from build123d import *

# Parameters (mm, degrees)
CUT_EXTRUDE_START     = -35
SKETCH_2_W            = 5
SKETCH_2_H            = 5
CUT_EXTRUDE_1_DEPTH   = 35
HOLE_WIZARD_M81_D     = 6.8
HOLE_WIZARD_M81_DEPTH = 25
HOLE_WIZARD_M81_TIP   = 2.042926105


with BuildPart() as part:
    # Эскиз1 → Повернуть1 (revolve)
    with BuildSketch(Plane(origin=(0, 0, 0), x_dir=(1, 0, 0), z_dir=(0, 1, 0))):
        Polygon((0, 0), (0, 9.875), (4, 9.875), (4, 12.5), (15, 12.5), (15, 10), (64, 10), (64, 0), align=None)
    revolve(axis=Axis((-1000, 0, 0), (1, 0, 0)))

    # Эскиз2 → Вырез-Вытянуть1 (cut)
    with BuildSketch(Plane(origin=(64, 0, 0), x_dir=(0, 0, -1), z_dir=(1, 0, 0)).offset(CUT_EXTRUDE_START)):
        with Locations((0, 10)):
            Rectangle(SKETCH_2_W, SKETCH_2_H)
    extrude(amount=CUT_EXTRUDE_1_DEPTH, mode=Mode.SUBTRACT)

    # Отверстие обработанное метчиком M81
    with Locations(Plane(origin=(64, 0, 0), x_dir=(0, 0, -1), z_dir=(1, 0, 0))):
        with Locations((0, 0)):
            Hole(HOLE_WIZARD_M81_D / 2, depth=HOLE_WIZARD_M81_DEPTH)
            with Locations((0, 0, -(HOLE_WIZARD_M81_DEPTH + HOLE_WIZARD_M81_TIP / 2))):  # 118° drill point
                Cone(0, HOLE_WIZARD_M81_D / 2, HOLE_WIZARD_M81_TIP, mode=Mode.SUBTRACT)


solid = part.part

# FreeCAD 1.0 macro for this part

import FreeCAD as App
import Part
import Sketcher


def add_polygon(sketch, points):
    """Adds a closed chain of lines whose ends are joined by coincident constraints."""
    first, n = sketch.GeometryCount, len(points)
    for a, b in zip(points, points[1:] + points[:1]):
        sketch.addGeometry(Part.LineSegment(App.Vector(*a, 0), App.Vector(*b, 0)), False)
    for i in range(n):
        sketch.addConstraint(Sketcher.Constraint("Coincident", first + i, 2, first + (i + 1) % n, 1))

doc = App.newDocument("Part")
body = doc.addObject("PartDesign::Body", "Body")

sketch1 = body.newObject("Sketcher::SketchObject", "Sketch")
sketch1.AttachmentSupport = (doc.getObject("XZ_Plane"), [""])
sketch1.MapMode = "FlatFace"
add_polygon(sketch1, [(0, -9.9), (0, 0), (64, 0), (64, -10), (15, -10), (15, -12.5), (4, -12.5), (4, -9.9)])
sketch1.addConstraint([
    Sketcher.Constraint("Vertical", 0),
    Sketcher.Constraint("Horizontal", 1),
    Sketcher.Constraint("Vertical", 2),
    Sketcher.Constraint("Horizontal", 3),
    Sketcher.Constraint("Vertical", 4),
    Sketcher.Constraint("Horizontal", 5),
    Sketcher.Constraint("Vertical", 6),
    Sketcher.Constraint("Horizontal", 7),
    Sketcher.Constraint("Coincident", 0, 2, -1, 1),
    Sketcher.Constraint("DistanceX", 1, 1, 1, 2, 64.0),
    Sketcher.Constraint("DistanceX", 3, 2, 3, 1, 49.0),
    Sketcher.Constraint("DistanceX", 5, 2, 5, 1, 11.0),
    Sketcher.Constraint("DistanceY", 2, 2, 2, 1, 10.0),
    Sketcher.Constraint("DistanceY", 4, 2, 4, 1, 2.5),
    Sketcher.Constraint("DistanceY", 0, 1, 0, 2, 9.875),
])
revolution = body.newObject("PartDesign::Revolution", "Revolution")
revolution.Profile = sketch1
revolution.ReferenceAxis = (sketch1, ["H_Axis"])
revolution.Angle = 360

sketch2 = body.newObject("Sketcher::SketchObject", "Sketch001")
sketch2.AttachmentSupport = (doc.getObject("YZ_Plane"), [""])
sketch2.MapMode = "FlatFace"
sketch2.AttachmentOffset = App.Placement(App.Vector(0, 0, 29), App.Rotation())
add_polygon(sketch2, [(12, 2), (8, 2), (8, -2), (12, -2)])
sketch2.addConstraint([
    Sketcher.Constraint("Horizontal", 0),
    Sketcher.Constraint("Vertical", 1),
    Sketcher.Constraint("Horizontal", 2),
    Sketcher.Constraint("Vertical", 3),
    Sketcher.Constraint("Equal", 2, 1),
    Sketcher.Constraint("DistanceX", 0, 2, 0, 1, 5.0),
    Sketcher.Constraint("DistanceX", -1, 1, 0, 2, 7.5),
    Sketcher.Constraint("DistanceY", -1, 1, 0, 2, 2.5),
])
pocket1 = body.newObject("PartDesign::Pocket", "Pocket")
pocket1.Profile = sketch2
pocket1.Length = 35
pocket1.Reversed = True

sketch3 = body.newObject("Sketcher::SketchObject", "Sketch002")
sketch3.AttachmentSupport = (doc.getObject("YZ_Plane"), [""])
sketch3.MapMode = "FlatFace"
sketch3.AttachmentOffset = App.Placement(App.Vector(0, 0, 64), App.Rotation())
sketch3.addGeometry(Part.Circle(App.Vector(0, 0, 0), App.Vector(0, 0, 1), 3.4), False)
sketch3.addConstraint([
    Sketcher.Constraint("Coincident", 0, 3, -1, 1),
    Sketcher.Constraint("Diameter", 0, 6.8),
])
doc.recompute()
hole = body.newObject("PartDesign::Hole", "Hole")
hole.Profile = sketch3
hole.ThreadType = "None"
hole.Diameter = 6.8
hole.DepthType = "Dimension"
hole.Depth = 25
hole.DrillPoint = "Angled"
hole.DrillPointAngle = 118

doc.recompute()
